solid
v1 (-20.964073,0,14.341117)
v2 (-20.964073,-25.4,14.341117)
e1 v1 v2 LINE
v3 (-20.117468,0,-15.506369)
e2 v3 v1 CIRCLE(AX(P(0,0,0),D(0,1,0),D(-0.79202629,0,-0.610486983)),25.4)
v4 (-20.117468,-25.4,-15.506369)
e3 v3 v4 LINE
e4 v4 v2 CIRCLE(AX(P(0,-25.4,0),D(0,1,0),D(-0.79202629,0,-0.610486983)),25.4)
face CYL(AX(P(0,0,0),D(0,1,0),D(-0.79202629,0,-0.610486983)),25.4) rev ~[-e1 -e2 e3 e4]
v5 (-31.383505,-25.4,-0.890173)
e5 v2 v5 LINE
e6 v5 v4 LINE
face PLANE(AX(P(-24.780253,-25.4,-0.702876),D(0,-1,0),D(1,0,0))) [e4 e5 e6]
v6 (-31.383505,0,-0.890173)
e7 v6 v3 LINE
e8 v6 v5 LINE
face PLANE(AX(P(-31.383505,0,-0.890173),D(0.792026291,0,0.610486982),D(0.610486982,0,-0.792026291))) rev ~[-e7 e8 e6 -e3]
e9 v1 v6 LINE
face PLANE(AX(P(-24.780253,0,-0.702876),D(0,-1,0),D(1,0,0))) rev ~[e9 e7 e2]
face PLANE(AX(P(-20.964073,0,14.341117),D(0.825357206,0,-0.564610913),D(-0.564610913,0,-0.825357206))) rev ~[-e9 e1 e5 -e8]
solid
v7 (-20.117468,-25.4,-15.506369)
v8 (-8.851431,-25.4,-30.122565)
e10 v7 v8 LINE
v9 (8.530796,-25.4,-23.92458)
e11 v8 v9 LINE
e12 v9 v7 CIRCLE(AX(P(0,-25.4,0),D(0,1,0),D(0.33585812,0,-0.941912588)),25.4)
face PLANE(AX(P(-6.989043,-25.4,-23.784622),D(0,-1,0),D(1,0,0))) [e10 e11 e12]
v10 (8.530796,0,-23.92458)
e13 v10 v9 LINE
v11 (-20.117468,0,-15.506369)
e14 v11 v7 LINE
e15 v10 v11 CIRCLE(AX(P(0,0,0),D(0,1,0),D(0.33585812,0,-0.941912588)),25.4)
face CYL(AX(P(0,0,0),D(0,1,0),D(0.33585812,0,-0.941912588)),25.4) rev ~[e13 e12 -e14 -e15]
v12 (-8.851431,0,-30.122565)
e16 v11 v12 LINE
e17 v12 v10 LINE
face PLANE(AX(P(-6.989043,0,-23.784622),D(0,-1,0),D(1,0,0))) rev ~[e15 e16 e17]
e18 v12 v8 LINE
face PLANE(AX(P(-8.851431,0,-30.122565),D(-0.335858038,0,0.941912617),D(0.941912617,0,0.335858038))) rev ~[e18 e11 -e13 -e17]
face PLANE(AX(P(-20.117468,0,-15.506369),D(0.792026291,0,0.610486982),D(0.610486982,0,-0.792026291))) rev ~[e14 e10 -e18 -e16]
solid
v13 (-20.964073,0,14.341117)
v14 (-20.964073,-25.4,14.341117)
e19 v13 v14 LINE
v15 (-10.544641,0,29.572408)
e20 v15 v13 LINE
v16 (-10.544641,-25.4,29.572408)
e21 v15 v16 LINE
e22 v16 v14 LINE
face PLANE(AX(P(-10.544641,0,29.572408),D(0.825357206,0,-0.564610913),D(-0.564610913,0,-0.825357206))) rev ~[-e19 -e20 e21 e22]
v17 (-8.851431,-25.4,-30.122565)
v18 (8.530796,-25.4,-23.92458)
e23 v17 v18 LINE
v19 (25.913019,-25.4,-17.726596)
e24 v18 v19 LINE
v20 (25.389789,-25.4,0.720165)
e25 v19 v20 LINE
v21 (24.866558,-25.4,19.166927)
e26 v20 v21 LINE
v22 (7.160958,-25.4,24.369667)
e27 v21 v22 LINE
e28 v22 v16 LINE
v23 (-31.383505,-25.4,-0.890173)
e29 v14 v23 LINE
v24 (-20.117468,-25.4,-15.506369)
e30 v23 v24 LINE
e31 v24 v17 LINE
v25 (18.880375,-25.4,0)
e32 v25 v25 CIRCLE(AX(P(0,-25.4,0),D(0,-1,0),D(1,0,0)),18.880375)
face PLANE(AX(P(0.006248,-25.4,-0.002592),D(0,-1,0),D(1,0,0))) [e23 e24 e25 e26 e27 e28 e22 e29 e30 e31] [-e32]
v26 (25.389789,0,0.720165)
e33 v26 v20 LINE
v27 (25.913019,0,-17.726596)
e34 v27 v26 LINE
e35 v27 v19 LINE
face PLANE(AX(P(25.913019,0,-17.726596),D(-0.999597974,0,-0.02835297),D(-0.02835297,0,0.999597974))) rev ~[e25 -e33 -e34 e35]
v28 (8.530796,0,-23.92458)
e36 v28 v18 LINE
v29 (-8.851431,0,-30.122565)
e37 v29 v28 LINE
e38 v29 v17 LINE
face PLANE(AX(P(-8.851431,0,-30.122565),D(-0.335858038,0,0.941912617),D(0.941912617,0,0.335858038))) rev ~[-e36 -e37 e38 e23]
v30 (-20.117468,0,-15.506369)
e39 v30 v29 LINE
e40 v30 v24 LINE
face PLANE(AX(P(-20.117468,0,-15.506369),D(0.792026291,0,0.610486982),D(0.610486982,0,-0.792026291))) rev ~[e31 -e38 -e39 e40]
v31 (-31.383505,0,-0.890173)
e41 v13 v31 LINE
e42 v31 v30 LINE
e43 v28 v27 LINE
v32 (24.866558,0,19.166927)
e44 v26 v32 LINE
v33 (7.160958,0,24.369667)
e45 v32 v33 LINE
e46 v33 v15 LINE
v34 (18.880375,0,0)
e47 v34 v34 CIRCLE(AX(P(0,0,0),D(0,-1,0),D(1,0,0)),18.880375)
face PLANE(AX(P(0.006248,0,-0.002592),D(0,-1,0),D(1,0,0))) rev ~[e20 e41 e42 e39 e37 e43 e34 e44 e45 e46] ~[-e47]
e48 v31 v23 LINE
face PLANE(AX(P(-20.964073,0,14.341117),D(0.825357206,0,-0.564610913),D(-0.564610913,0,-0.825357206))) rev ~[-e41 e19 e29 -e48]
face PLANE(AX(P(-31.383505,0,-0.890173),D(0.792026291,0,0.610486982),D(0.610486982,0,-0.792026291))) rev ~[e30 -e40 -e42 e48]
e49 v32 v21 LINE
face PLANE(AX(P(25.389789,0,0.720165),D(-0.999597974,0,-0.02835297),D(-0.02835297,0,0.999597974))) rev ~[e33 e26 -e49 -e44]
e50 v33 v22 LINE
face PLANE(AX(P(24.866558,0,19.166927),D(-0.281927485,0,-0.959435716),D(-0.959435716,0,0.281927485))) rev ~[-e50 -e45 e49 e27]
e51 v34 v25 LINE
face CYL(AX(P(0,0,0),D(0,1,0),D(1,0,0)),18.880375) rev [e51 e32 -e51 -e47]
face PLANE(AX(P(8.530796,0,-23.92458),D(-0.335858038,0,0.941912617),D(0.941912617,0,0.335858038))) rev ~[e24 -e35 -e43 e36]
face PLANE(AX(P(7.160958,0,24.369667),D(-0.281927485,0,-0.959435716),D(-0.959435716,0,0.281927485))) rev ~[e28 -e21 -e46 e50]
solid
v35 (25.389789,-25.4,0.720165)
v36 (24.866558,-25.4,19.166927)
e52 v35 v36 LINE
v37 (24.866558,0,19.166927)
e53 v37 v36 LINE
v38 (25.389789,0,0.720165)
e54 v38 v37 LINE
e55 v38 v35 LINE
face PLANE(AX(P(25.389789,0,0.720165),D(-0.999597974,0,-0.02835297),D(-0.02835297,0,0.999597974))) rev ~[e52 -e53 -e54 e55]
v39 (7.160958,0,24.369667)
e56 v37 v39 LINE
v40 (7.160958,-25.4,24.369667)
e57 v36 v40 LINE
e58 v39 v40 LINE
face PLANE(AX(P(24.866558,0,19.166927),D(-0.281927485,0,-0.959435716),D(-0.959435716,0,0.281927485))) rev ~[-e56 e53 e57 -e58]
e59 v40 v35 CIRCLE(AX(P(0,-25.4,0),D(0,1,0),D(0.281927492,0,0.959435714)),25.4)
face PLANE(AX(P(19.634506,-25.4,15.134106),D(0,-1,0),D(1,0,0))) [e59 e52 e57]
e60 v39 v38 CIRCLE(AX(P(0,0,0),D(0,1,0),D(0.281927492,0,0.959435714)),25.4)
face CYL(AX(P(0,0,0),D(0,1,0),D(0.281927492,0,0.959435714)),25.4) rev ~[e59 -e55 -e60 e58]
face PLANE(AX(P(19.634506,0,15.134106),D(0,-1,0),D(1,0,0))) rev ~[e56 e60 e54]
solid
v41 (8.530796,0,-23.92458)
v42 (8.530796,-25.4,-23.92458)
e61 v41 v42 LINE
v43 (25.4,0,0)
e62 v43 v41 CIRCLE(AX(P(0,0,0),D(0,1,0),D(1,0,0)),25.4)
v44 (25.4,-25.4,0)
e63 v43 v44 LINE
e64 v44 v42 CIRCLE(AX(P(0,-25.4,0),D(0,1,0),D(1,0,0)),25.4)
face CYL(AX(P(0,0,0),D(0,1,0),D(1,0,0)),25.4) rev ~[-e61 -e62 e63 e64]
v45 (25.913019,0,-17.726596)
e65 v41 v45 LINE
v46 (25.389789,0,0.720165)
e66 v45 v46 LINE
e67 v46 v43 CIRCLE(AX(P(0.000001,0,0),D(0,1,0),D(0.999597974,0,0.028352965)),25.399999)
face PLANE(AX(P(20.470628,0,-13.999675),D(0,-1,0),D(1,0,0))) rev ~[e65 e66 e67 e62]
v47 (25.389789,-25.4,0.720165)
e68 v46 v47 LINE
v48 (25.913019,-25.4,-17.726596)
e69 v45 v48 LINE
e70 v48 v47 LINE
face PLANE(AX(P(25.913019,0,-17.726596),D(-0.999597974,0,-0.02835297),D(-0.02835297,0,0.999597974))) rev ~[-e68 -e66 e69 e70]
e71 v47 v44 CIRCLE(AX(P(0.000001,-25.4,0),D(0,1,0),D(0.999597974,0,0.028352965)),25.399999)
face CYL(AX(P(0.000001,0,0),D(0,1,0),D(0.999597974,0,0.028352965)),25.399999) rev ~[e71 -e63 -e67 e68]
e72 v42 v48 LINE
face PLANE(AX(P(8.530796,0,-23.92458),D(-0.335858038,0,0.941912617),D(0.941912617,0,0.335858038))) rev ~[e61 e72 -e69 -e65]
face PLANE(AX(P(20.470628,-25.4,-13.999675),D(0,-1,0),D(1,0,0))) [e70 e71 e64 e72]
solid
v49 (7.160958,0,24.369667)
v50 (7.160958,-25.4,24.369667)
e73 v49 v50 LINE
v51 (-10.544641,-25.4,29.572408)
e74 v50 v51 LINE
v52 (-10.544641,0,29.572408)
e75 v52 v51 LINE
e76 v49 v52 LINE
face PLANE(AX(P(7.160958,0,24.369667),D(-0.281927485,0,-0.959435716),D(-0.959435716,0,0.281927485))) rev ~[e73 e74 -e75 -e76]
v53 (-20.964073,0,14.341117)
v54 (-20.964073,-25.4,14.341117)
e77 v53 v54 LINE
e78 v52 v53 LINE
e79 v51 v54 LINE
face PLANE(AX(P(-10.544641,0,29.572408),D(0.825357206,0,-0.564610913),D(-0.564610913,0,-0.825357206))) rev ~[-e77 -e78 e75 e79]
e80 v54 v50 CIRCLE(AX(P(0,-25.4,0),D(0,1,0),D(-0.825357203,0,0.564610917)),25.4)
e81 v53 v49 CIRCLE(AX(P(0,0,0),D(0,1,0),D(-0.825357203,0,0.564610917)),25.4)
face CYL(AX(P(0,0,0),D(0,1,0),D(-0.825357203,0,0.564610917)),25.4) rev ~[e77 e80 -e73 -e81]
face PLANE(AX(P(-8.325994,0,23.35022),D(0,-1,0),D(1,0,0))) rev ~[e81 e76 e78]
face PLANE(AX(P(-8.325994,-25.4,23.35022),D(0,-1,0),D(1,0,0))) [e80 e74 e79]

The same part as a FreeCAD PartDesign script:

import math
import FreeCAD as App
import Part
import Sketcher
from FreeCAD import Vector
Q = App.Units.Quantity

doc = App.newDocument("Part")
body = doc.addObject("PartDesign::Body", "Body")

# Sketch on XZ plane
sketch1 = body.newObject("Sketcher::SketchObject", "Sketch")
sketch1.AttachmentSupport = (doc.getObject("XZ_Plane"), [""])
sketch1.MapMode = "FlatFace"
sketch1.addGeometry([
    Part.ArcOfCircle(Part.Circle(Vector(0, 0, 0), Vector(0, 0, 1), 25), math.radians(2), math.radians(74)),
    Part.LineSegment(Vector(25, 1, 0), Vector(25, 19, 0)),
    Part.LineSegment(Vector(25, 19, 0), Vector(7, 24, 0)),
], False)
sketch1.addConstraint([
    Sketcher.Constraint("Tangent", 0, 1, 1, 1),
    Sketcher.Constraint("Coincident", 1, 2, 2, 1),
    Sketcher.Constraint("Tangent", 2, 2, 0, 2),
    Sketcher.Constraint("Coincident", 0, 3, -1, 1),
    Sketcher.Constraint("Radius", 0, Q("1 in")),
    Sketcher.Constraint("DistanceX", 2, 2, 1, 2, Q("17.705599 mm")),
    Sketcher.Constraint("DistanceY", 0, 1, 2, 2, Q("23.649502 mm")),
])
pad1 = body.newObject("PartDesign::Pad", "Pad")
pad1.Profile = sketch1
pad1.Length = Q("1 in")
body2 = doc.addObject("PartDesign::Body", "Body001")

# Sketch on XZ plane
sketch2 = body2.newObject("Sketcher::SketchObject", "Sketch001")
sketch2.AttachmentSupport = (doc.getObject("XZ_Plane001"), [""])
sketch2.MapMode = "FlatFace"
sketch2.addGeometry([
    Part.ArcOfCircle(Part.Circle(Vector(0, 0, 0), Vector(0, 0, 1), 25), math.radians(74), math.radians(146)),
    Part.LineSegment(Vector(7, 24, 0), Vector(-11, 30, 0)),
    Part.LineSegment(Vector(-11, 30, 0), Vector(-21, 14, 0)),
], False)
sketch2.addConstraint([
    Sketcher.Constraint("Tangent", 0, 1, 1, 1),
    Sketcher.Constraint("Coincident", 1, 2, 2, 1),
    Sketcher.Constraint("Tangent", 2, 2, 0, 2),
    Sketcher.Constraint("Coincident", 0, 3, -1, 1),
    Sketcher.Constraint("Radius", 0, Q("1 in")),
    Sketcher.Constraint("DistanceX", 1, 2, 0, 1, Q("17.7056 mm")),
    Sketcher.Constraint("Distance", 1, Q("18.45418 mm")),
])
pad2 = body2.newObject("PartDesign::Pad", "Pad001")
pad2.Profile = sketch2
pad2.Length = Q("1 in")
body3 = doc.addObject("PartDesign::Body", "Body002")

# Sketch on XZ plane
sketch3 = body3.newObject("Sketcher::SketchObject", "Sketch002")
sketch3.AttachmentSupport = (doc.getObject("XZ_Plane002"), [""])
sketch3.MapMode = "FlatFace"
sketch3.addGeometry([
    Part.LineSegment(Vector(-31, -1, 0), Vector(-20, -16, 0)),
    Part.ArcOfCircle(Part.Circle(Vector(0, 0, 0), Vector(0, 0, 1), 25), math.radians(146), math.radians(218)),
    Part.LineSegment(Vector(-21, 14, 0), Vector(-31, -1, 0)),
], False)
sketch3.addConstraint([
    Sketcher.Constraint("Tangent", 0, 2, 1, 2),
    Sketcher.Constraint("Tangent", 1, 1, 2, 1),
    Sketcher.Constraint("Coincident", 2, 2, 0, 1),
    Sketcher.Constraint("Coincident", 1, 3, -1, 1),
    Sketcher.Constraint("Radius", 1, Q("1 in")),
    Sketcher.Constraint("Distance", 0, Q("18.45418 mm")),
    Sketcher.Constraint("DistanceY", 0, 2, -1, 1, Q("15.506369 mm")),
])
pad3 = body3.newObject("PartDesign::Pad", "Pad002")
pad3.Profile = sketch3
pad3.Length = Q("1 in")
body4 = doc.addObject("PartDesign::Body", "Body003")

# Sketch on XZ plane
sketch4 = body4.newObject("Sketcher::SketchObject", "Sketch003")
sketch4.AttachmentSupport = (doc.getObject("XZ_Plane003"), [""])
sketch4.MapMode = "FlatFace"
sketch4.addGeometry([
    Part.LineSegment(Vector(-9, -30, 0), Vector(9, -24, 0)),
    Part.ArcOfCircle(Part.Circle(Vector(0, 0, 0), Vector(0, 0, 1), 25), math.radians(-142), math.radians(-70)),
    Part.LineSegment(Vector(-20, -16, 0), Vector(-9, -30, 0)),
], False)
sketch4.addConstraint([
    Sketcher.Constraint("Tangent", 0, 2, 1, 2),
    Sketcher.Constraint("Tangent", 1, 1, 2, 1),
    Sketcher.Constraint("Coincident", 2, 2, 0, 1),
    Sketcher.Constraint("Coincident", 1, 3, -1, 1),
    Sketcher.Constraint("Radius", 1, Q("1 in")),
    Sketcher.Constraint("Distance", 2, Q("18.45418 mm")),
    Sketcher.Constraint("DistanceY", 0, 2, -1, 1, Q("23.92458 mm")),
])
pad4 = body4.newObject("PartDesign::Pad", "Pad003")
pad4.Profile = sketch4
pad4.Length = Q("1 in")
body5 = doc.addObject("PartDesign::Body", "Body004")

# Sketch on XZ plane
sketch5 = body5.newObject("Sketcher::SketchObject", "Sketch004")
sketch5.AttachmentSupport = (doc.getObject("XZ_Plane004"), [""])
sketch5.MapMode = "FlatFace"
sketch5.addGeometry([
    Part.ArcOfCircle(Part.Circle(Vector(0, 0, 0), Vector(0, 0, 1), 25.4), math.radians(0), math.radians(1.62)),
    Part.ArcOfCircle(Part.Circle(Vector(0, 0, 0), Vector(0, 0, 1), 25.4), math.radians(-70), math.radians(0)),
    Part.LineSegment(Vector(8.5, -23.9, 0), Vector(25.9, -17.7, 0)),
    Part.LineSegment(Vector(25.9, -17.7, 0), Vector(25.4, 0.7, 0)),
], False)
sketch5.addConstraint([
    Sketcher.Constraint("Tangent", 0, 1, 1, 2),
    Sketcher.Constraint("Tangent", 1, 1, 2, 1),
    Sketcher.Constraint("Coincident", 2, 2, 3, 1),
    Sketcher.Constraint("Tangent", 3, 2, 0, 2),
    Sketcher.Constraint("Coincident", 0, 3, -1, 1),
    Sketcher.Constraint("Equal", 0, 1),
    Sketcher.Constraint("PointOnObject", 0, 1, -1),
    Sketcher.Constraint("Radius", 0, Q("1 in")),
    Sketcher.Constraint("Distance", 2, Q("18.454178 mm")),
    Sketcher.Constraint("DistanceY", 1, 1, -1, 1, Q("23.92458 mm")),
])
pad5 = body5.newObject("PartDesign::Pad", "Pad004")
pad5.Profile = sketch5
pad5.Length = Q("1 in")
body6 = doc.addObject("PartDesign::Body", "Body005")

# Sketch on XZ plane
sketch6 = body6.newObject("Sketcher::SketchObject", "Sketch005")
sketch6.AttachmentSupport = (doc.getObject("XZ_Plane005"), [""])
sketch6.MapMode = "FlatFace"
sketch6.addGeometry([
    Part.LineSegment(Vector(9, -24, 0), Vector(26, -18, 0)),  # 0
    Part.LineSegment(Vector(26, -18, 0), Vector(25, 1, 0)),  # 1
    Part.LineSegment(Vector(25, 1, 0), Vector(25, 19, 0)),  # 2
    Part.LineSegment(Vector(25, 19, 0), Vector(7, 24, 0)),  # 3
    Part.LineSegment(Vector(7, 24, 0), Vector(-11, 30, 0)),  # 4
    Part.LineSegment(Vector(-11, 30, 0), Vector(-21, 14, 0)),  # 5
    Part.LineSegment(Vector(-21, 14, 0), Vector(-31, -1, 0)),  # 6
    Part.LineSegment(Vector(-31, -1, 0), Vector(-20, -16, 0)),  # 7
    Part.LineSegment(Vector(-20, -16, 0), Vector(-9, -30, 0)),  # 8
    Part.LineSegment(Vector(-9, -30, 0), Vector(9, -24, 0)),  # 9
    Part.Circle(Vector(0, 0, 0), Vector(0, 0, 1), 19),  # 10
], False)
sketch6.addConstraint([
    Sketcher.Constraint("Coincident", 0, 2, 1, 1),
    Sketcher.Constraint("Coincident", 1, 2, 2, 1),
    Sketcher.Constraint("Coincident", 2, 2, 3, 1),
    Sketcher.Constraint("Coincident", 3, 2, 4, 1),
    Sketcher.Constraint("Coincident", 4, 2, 5, 1),
    Sketcher.Constraint("Coincident", 5, 2, 6, 1),
    Sketcher.Constraint("Coincident", 6, 2, 7, 1),
    Sketcher.Constraint("Coincident", 7, 2, 8, 1),
    Sketcher.Constraint("Coincident", 8, 2, 9, 1),
    Sketcher.Constraint("Coincident", 9, 2, 0, 1),
    Sketcher.Constraint("Coincident", 10, 3, -1, 1),
    Sketcher.Constraint("Parallel", 1, 2),
    Sketcher.Constraint("Parallel", 3, 4),
    Sketcher.Constraint("Parallel", 5, 6),
    Sketcher.Constraint("Parallel", 7, 8),
    Sketcher.Constraint("Parallel", 0, 9),
    Sketcher.Constraint("Equal", 1, 2),
    Sketcher.Constraint("Equal", 2, 3),
    Sketcher.Constraint("Equal", 3, 4),
    Sketcher.Constraint("Equal", 4, 5),
    Sketcher.Constraint("Equal", 5, 6),
    Sketcher.Constraint("Equal", 6, 7),
    Sketcher.Constraint("Equal", 7, 8),
    Sketcher.Constraint("Equal", 4, 9),
    Sketcher.Constraint("Diameter", 10, Q("37.760749 mm")),
    Sketcher.Constraint("DistanceX", 3, 2, 2, 2, Q("17.705599 mm")),
    Sketcher.Constraint("DistanceY", 1, 2, 3, 2, Q("23.649502 mm")),
    Sketcher.Constraint("Distance", 0, Q("18.454178 mm")),
    Sketcher.Constraint("DistanceX", -1, 1, 0, 2, Q("25.913019 mm")),
    Sketcher.Constraint("DistanceX", -1, 1, 1, 2, Q("25.389789 mm")),
    Sketcher.Constraint("DistanceY", 7, 2, -1, 1, Q("15.506369 mm")),
    Sketcher.Constraint("DistanceX", 8, 2, -1, 1, Q("8.851431 mm")),
])
pad6 = body6.newObject("PartDesign::Pad", "Pad005")
pad6.Profile = sketch6
pad6.Length = Q("1 in")

doc.recompute()
